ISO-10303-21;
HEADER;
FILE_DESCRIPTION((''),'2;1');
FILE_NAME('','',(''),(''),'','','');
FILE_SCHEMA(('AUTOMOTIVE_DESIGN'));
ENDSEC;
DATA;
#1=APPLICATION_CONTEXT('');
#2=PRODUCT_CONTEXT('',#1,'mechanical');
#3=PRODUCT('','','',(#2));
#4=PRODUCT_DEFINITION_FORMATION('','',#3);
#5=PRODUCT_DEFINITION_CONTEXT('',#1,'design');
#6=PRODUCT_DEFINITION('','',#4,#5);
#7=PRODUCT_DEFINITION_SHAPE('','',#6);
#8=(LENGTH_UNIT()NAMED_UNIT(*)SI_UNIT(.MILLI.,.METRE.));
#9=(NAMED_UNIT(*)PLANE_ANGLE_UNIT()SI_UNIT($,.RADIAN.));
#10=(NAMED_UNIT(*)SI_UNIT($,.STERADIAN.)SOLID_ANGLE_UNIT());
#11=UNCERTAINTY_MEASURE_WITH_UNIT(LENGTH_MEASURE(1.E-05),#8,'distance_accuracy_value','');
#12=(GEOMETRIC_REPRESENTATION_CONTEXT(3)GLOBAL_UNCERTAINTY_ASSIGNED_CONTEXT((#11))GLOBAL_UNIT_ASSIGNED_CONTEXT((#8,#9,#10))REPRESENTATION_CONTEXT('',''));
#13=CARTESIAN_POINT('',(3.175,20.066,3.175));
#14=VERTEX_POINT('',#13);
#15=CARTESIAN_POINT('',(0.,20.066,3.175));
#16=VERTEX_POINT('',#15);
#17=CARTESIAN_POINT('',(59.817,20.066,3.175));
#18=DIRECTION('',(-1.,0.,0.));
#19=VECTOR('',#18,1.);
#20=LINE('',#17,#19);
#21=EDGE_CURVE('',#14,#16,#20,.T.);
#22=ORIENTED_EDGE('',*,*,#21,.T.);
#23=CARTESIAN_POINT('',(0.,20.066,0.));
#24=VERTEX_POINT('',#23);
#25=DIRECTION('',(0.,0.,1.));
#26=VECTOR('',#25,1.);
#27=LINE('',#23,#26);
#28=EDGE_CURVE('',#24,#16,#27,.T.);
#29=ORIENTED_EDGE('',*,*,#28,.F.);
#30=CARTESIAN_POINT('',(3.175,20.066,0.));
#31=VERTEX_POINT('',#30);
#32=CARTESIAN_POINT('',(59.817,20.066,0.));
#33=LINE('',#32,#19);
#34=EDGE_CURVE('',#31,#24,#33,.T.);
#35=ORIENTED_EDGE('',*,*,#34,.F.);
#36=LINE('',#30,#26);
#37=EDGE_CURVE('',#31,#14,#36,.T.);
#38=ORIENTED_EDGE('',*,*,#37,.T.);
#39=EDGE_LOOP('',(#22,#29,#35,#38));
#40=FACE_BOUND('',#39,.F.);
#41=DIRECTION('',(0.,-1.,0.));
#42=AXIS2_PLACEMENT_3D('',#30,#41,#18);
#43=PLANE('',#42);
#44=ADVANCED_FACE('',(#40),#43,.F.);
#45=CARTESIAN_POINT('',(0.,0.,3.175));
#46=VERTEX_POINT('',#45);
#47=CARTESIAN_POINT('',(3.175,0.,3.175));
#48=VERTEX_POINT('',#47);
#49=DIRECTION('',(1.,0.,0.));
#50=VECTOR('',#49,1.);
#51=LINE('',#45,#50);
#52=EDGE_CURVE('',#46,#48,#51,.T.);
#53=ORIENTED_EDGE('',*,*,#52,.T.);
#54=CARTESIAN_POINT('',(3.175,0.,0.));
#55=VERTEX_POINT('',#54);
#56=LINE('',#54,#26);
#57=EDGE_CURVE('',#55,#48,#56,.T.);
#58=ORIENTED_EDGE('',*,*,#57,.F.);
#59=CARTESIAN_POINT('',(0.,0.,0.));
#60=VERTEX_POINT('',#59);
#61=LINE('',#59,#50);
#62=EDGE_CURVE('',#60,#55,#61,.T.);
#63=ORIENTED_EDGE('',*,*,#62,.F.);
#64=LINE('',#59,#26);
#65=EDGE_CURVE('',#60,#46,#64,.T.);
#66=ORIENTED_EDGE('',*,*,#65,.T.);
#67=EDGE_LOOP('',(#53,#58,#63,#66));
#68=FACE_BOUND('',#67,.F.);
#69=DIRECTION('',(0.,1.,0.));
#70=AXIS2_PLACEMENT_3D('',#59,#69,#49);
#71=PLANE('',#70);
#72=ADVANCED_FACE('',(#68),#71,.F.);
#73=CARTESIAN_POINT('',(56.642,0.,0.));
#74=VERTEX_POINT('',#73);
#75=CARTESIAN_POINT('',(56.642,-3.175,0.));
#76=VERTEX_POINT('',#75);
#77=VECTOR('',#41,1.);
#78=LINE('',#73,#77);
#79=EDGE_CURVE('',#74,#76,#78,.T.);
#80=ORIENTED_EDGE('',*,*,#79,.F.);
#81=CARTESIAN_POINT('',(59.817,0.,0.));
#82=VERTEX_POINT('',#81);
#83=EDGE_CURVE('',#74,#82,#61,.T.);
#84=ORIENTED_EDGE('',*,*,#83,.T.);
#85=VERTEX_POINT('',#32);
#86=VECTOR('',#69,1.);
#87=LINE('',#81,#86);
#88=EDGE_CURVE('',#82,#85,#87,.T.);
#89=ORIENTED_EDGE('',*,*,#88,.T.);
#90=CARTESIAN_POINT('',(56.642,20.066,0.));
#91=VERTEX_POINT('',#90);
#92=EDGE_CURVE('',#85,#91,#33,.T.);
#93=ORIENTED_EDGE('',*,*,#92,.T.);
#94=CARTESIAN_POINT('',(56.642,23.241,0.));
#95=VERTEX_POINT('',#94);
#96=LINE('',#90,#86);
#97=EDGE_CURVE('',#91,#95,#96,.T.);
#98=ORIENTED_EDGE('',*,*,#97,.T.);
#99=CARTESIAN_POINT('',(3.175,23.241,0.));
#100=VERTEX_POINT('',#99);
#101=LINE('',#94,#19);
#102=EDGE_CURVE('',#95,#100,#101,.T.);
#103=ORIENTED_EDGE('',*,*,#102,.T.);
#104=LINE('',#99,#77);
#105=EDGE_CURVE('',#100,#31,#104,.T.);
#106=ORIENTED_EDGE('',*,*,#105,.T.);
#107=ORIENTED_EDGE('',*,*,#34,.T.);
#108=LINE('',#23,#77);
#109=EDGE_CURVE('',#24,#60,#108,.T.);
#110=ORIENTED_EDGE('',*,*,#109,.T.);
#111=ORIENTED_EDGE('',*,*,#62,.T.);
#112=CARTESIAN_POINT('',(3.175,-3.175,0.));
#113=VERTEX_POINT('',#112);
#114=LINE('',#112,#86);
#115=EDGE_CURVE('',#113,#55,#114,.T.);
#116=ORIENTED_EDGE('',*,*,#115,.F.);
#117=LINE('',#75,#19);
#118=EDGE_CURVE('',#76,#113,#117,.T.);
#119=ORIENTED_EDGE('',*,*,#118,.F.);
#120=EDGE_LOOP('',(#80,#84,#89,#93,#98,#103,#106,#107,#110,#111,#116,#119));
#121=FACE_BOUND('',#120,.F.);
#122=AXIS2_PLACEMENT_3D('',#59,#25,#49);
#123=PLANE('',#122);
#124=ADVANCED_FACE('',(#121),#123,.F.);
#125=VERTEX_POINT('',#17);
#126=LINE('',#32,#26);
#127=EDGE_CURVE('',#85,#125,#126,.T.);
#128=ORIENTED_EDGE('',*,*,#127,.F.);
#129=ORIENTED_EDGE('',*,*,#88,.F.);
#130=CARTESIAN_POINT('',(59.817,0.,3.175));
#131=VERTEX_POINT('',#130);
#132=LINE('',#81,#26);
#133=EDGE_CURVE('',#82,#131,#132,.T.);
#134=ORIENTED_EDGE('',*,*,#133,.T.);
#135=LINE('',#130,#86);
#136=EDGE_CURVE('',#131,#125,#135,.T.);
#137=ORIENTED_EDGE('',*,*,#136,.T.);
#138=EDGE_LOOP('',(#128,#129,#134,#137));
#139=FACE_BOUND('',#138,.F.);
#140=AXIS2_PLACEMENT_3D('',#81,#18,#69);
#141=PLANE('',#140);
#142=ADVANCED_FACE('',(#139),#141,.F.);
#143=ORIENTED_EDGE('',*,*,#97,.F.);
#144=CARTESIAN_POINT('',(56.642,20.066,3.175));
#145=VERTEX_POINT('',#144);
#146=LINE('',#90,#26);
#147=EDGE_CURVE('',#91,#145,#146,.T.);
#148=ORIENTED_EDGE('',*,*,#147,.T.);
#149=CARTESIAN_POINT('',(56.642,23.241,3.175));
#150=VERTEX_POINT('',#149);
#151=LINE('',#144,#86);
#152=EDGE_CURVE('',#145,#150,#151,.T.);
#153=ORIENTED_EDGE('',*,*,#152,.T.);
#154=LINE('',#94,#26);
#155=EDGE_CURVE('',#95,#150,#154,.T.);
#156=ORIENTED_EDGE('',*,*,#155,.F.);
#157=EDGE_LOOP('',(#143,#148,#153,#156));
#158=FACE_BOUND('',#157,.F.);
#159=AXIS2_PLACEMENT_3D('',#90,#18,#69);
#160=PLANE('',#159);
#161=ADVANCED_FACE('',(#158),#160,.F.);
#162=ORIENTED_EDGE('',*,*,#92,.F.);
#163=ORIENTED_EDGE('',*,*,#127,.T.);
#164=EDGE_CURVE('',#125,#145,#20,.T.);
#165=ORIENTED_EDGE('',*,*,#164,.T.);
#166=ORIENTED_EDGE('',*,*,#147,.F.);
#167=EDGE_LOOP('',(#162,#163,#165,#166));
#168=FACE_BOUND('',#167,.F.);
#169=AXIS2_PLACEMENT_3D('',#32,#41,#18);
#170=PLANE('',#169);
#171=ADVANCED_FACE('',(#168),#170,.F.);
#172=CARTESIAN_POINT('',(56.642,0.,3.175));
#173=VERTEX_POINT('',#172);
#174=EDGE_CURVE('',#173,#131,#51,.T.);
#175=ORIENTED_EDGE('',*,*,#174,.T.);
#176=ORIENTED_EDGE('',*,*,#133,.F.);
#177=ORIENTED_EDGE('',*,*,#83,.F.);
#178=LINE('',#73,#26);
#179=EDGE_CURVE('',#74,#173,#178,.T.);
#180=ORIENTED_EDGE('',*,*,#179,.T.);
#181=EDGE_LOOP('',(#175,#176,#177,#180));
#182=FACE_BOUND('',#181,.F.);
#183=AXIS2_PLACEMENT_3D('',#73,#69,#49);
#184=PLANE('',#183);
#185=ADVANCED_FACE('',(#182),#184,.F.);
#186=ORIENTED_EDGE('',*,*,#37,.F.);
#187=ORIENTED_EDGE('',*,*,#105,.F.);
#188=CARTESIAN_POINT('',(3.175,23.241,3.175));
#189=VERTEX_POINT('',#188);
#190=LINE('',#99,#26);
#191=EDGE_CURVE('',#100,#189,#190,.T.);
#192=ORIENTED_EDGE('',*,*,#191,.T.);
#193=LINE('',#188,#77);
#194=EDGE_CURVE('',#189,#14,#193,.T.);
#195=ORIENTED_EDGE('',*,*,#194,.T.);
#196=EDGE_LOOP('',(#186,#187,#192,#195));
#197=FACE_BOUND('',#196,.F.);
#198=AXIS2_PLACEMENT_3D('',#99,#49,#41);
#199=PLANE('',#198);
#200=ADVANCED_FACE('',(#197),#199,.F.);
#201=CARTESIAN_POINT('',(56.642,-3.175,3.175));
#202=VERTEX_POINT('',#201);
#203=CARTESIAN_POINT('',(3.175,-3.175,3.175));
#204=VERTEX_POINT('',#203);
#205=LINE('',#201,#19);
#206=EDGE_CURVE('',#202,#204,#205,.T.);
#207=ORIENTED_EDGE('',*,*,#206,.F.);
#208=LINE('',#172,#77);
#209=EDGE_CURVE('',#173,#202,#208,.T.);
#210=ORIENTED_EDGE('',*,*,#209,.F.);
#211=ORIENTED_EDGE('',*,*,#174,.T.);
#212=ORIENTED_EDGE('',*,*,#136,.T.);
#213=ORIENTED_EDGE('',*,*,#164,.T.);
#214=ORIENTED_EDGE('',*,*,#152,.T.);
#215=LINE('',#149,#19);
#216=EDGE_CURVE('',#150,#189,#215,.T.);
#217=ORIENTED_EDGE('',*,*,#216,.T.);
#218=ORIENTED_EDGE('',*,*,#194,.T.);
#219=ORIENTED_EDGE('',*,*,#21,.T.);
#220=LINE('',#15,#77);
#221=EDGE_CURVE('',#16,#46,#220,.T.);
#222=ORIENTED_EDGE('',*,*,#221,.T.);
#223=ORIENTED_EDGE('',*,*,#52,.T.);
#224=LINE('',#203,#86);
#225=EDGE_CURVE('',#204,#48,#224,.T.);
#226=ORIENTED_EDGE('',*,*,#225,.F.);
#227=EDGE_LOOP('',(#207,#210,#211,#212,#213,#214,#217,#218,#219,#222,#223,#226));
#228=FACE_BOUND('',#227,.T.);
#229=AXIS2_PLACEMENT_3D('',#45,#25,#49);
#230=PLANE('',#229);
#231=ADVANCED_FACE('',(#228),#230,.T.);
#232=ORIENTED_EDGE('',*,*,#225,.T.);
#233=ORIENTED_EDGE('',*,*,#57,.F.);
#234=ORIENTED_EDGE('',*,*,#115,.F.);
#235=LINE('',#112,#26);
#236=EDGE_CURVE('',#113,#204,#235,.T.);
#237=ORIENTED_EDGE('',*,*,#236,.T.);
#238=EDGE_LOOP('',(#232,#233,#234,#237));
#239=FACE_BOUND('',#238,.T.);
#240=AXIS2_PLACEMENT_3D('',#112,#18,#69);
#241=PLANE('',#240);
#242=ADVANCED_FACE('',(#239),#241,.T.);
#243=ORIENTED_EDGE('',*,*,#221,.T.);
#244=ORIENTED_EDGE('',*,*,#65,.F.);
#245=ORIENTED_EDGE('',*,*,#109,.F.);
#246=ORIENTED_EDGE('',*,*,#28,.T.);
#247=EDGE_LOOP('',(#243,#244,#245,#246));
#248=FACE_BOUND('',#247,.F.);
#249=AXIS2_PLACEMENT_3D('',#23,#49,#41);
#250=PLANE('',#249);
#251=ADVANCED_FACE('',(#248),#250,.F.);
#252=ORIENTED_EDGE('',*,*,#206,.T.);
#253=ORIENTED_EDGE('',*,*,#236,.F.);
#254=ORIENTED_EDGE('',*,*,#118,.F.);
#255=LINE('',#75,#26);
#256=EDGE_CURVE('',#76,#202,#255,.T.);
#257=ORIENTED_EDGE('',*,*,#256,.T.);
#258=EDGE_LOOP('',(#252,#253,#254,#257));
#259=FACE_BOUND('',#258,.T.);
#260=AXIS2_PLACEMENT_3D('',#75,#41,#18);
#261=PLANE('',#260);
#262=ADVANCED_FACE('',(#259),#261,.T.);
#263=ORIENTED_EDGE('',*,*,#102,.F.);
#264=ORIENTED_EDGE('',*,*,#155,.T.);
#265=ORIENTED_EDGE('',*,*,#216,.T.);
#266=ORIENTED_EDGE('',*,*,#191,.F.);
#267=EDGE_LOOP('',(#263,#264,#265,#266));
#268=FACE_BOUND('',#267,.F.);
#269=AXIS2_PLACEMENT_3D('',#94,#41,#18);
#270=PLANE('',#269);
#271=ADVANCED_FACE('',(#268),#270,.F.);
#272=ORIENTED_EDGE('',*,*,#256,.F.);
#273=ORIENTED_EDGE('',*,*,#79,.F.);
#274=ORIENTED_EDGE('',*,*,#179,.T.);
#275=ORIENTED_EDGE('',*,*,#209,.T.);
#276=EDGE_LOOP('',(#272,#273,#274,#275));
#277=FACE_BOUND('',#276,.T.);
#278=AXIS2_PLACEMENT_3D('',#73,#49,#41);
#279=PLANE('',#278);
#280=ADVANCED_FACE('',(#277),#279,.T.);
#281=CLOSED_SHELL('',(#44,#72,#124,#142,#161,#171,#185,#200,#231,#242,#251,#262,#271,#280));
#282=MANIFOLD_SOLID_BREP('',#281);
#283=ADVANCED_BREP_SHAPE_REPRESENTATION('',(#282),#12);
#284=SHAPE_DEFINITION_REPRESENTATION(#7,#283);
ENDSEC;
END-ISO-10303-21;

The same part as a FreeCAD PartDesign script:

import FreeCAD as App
import Part
import Sketcher
Q = App.Units.Quantity


def add_polygon(sketch, points):
    """Adds a closed chain of lines whose ends are joined by coincident constraints."""
    first, n = sketch.GeometryCount, len(points)
    for a, b in zip(points, points[1:] + points[:1]):
        sketch.addGeometry(Part.LineSegment(App.Vector(*a, 0), App.Vector(*b, 0)), False)
    for i in range(n):
        sketch.addConstraint(Sketcher.Constraint("Coincident", first + i, 2, first + (i + 1) % n, 1))

doc = App.newDocument("Part")
body = doc.addObject("PartDesign::Body", "Body")

# Sketch on XY plane
sketch1 = body.newObject("Sketcher::SketchObject", "Sketch")
sketch1.AttachmentSupport = (doc.getObject("XY_Plane"), [""])
sketch1.MapMode = "FlatFace"
add_polygon(sketch1, [(0, 20.1), (0, 0), (3.2, 0), (3.2, -3.2), (56.6, -3.2), (56.6, 0), (59.8, 0), (59.8, 20.1), (56.6, 20.1), (56.6, 23.2), (3.2, 23.2), (3.2, 20.1)])  # lines 0-11
sketch1.addConstraint(Sketcher.Constraint("Vertical", 0))
sketch1.addConstraint(Sketcher.Constraint("Horizontal", 1))
sketch1.addConstraint(Sketcher.Constraint("Vertical", 2))
sketch1.addConstraint(Sketcher.Constraint("Horizontal", 3))
sketch1.addConstraint(Sketcher.Constraint("Vertical", 4))
sketch1.addConstraint(Sketcher.Constraint("Horizontal", 5))
sketch1.addConstraint(Sketcher.Constraint("Vertical", 6))
sketch1.addConstraint(Sketcher.Constraint("Horizontal", 7))
sketch1.addConstraint(Sketcher.Constraint("Vertical", 8))
sketch1.addConstraint(Sketcher.Constraint("Horizontal", 9))
sketch1.addConstraint(Sketcher.Constraint("Vertical", 10))
sketch1.addConstraint(Sketcher.Constraint("Horizontal", 11))
sketch1.addConstraint(Sketcher.Constraint("Coincident", 0, 2, -1, 1))
sketch1.addConstraint(Sketcher.Constraint("PointOnObject", 4, 2, -1))
sketch1.addConstraint(Sketcher.Constraint("Horizontal", 7, 2, 10, 2))
sketch1.addConstraint(Sketcher.Constraint("Vertical", 4, 2, 7, 2))
sketch1.addConstraint(Sketcher.Constraint("Vertical", 2, 2, 9, 2))
sketch1.addConstraint(Sketcher.Constraint("Equal", 1, 5))
sketch1.addConstraint(Sketcher.Constraint("Equal", 11, 2))
sketch1.addConstraint(Sketcher.Constraint("Equal", 4, 8))
sketch1.addConstraint(Sketcher.Constraint("DistanceY", 0, 2, 0, 1, Q("0.79 in")))
sketch1.addConstraint(Sketcher.Constraint("DistanceX", 1, 1, 1, 2, Q("0.125 in")))
sketch1.addConstraint(Sketcher.Constraint("DistanceX", 3, 1, 3, 2, Q("2.105 in")))
pad1 = body.newObject("PartDesign::Pad", "Pad")
pad1.Profile = sketch1
pad1.Length = Q("0.125 in")

doc.recompute()
